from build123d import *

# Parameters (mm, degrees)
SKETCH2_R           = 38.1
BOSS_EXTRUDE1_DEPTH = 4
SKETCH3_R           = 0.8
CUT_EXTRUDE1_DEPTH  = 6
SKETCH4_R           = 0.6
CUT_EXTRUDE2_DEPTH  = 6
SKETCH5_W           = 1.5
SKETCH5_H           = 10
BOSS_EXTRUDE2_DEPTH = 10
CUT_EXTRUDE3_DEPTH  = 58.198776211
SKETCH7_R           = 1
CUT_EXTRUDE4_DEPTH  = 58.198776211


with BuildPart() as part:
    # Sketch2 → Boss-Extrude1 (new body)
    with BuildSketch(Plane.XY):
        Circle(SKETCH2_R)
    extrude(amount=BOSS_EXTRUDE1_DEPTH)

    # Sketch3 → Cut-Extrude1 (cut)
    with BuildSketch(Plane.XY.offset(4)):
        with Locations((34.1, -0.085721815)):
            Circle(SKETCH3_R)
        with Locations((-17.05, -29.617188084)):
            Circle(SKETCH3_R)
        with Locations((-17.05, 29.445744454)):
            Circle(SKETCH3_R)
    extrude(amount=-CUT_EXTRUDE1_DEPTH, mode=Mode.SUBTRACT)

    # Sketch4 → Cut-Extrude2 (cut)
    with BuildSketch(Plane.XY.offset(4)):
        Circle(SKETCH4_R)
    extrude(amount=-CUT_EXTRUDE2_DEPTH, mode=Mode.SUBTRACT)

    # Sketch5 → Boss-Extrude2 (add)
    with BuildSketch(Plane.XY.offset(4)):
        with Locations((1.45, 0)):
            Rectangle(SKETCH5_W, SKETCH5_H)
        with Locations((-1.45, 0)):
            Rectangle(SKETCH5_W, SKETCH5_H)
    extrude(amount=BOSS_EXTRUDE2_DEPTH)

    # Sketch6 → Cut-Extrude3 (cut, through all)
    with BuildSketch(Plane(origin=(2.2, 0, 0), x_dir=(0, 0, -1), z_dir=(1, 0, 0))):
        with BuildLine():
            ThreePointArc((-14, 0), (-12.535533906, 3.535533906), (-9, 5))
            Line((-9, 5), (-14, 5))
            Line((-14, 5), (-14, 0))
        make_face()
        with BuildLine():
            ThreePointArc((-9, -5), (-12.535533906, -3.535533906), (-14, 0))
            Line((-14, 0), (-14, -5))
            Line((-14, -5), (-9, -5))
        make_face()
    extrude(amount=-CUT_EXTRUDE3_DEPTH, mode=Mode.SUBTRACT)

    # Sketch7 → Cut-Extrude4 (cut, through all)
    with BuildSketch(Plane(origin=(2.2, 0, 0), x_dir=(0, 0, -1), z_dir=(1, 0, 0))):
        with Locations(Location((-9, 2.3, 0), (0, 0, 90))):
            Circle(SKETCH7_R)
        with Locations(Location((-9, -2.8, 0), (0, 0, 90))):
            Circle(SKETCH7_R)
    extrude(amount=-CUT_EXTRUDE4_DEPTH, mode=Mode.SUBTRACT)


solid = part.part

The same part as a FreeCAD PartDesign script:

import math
import FreeCAD as App
import Part
import Sketcher
from FreeCAD import Vector

doc = App.newDocument("Part")
body = doc.addObject("PartDesign::Body", "Body")

# Sketch on XY plane
sketch1 = body.newObject("Sketcher::SketchObject", "Sketch")
sketch1.AttachmentSupport = (doc.getObject("XY_Plane"), [""])
sketch1.MapMode = "FlatFace"
sketch1.addGeometry(Part.Circle(Vector(0, 0, 0), Vector(0, 0, 1), 38), False)
sketch1.addConstraint(Sketcher.Constraint("Coincident", 0, 3, -1, 1))
sketch1.addConstraint(Sketcher.Constraint("Diameter", 0, 76.2))
pad1 = body.newObject("PartDesign::Pad", "Pad")
pad1.Profile = sketch1
pad1.Length = 4

# Sketch on XY plane
sketch2 = body.newObject("Sketcher::SketchObject", "Sketch001")
sketch2.AttachmentSupport = (doc.getObject("XY_Plane"), [""])
sketch2.MapMode = "FlatFace"
sketch2.AttachmentOffset = App.Placement(Vector(0, 0, 4), App.Rotation())
sketch2.addGeometry(Part.Circle(Vector(34.1, -0.1, 0), Vector(0, 0, 1), 0.8), False)
sketch2.addGeometry(Part.Circle(Vector(-17.1, -29.6, 0), Vector(0, 0, 1), 0.8), False)
sketch2.addGeometry(Part.Circle(Vector(-17.1, 29.4, 0), Vector(0, 0, 1), 0.8), False)
sketch2.addConstraint(Sketcher.Constraint("Equal", 0, 1))
sketch2.addConstraint(Sketcher.Constraint("Equal", 1, 2))
sketch2.addConstraint(Sketcher.Constraint("Vertical", 1, 3, 2, 3))
sketch2.addConstraint(Sketcher.Constraint("Diameter", 0, 1.6))
sketch2.addConstraint(Sketcher.Constraint("DistanceX", -1, 1, 0, 3, 34.1))
sketch2.addConstraint(Sketcher.Constraint("DistanceX", 1, 3, -1, 1, 17.05))
sketch2.addConstraint(Sketcher.Constraint("DistanceY", 0, 3, -1, 1, 0.085722))
sketch2.addConstraint(Sketcher.Constraint("DistanceY", 1, 3, -1, 1, 29.617188))
sketch2.addConstraint(Sketcher.Constraint("DistanceY", -1, 1, 2, 3, 29.445744))
pocket1 = body.newObject("PartDesign::Pocket", "Pocket")
pocket1.Profile = sketch2
pocket1.Length = 6

# Sketch on XY plane
sketch3 = body.newObject("Sketcher::SketchObject", "Sketch002")
sketch3.AttachmentSupport = (doc.getObject("XY_Plane"), [""])
sketch3.MapMode = "FlatFace"
sketch3.AttachmentOffset = App.Placement(Vector(0, 0, 4), App.Rotation())
sketch3.addGeometry(Part.Circle(Vector(0, 0, 0), Vector(0, 0, 1), 0.6), False)
sketch3.addConstraint(Sketcher.Constraint("Coincident", 0, 3, -1, 1))
sketch3.addConstraint(Sketcher.Constraint("Diameter", 0, 1.2))
pocket2 = body.newObject("PartDesign::Pocket", "Pocket001")
pocket2.Profile = sketch3
pocket2.Length = 6

# Sketch on XY plane
sketch4 = body.newObject("Sketcher::SketchObject", "Sketch003")
sketch4.AttachmentSupport = (doc.getObject("XY_Plane"), [""])
sketch4.MapMode = "FlatFace"
sketch4.AttachmentOffset = App.Placement(Vector(0, 0, 4), App.Rotation())
sketch4.addGeometry(Part.LineSegment(Vector(0.7, 5, 0), Vector(0.7, -5, 0)), False)
sketch4.addGeometry(Part.LineSegment(Vector(0.7, -5, 0), Vector(2.2, -5, 0)), False)
sketch4.addGeometry(Part.LineSegment(Vector(2.2, -5, 0), Vector(2.2, 5, 0)), False)
sketch4.addGeometry(Part.LineSegment(Vector(2.2, 5, 0), Vector(0.7, 5, 0)), False)
sketch4.addGeometry(Part.LineSegment(Vector(-2.2, 5, 0), Vector(-2.2, -5, 0)), False)
sketch4.addGeometry(Part.LineSegment(Vector(-2.2, -5, 0), Vector(-0.7, -5, 0)), False)
sketch4.addGeometry(Part.LineSegment(Vector(-0.7, -5, 0), Vector(-0.7, 5, 0)), False)
sketch4.addGeometry(Part.LineSegment(Vector(-0.7, 5, 0), Vector(-2.2, 5, 0)), False)
sketch4.addConstraint(Sketcher.Constraint("Coincident", 0, 2, 1, 1))
sketch4.addConstraint(Sketcher.Constraint("Coincident", 1, 2, 2, 1))
sketch4.addConstraint(Sketcher.Constraint("Coincident", 2, 2, 3, 1))
sketch4.addConstraint(Sketcher.Constraint("Coincident", 3, 2, 0, 1))
sketch4.addConstraint(Sketcher.Constraint("Coincident", 4, 2, 5, 1))
sketch4.addConstraint(Sketcher.Constraint("Coincident", 5, 2, 6, 1))
sketch4.addConstraint(Sketcher.Constraint("Coincident", 6, 2, 7, 1))
sketch4.addConstraint(Sketcher.Constraint("Coincident", 7, 2, 4, 1))
sketch4.addConstraint(Sketcher.Constraint("Vertical", 0))
sketch4.addConstraint(Sketcher.Constraint("Horizontal", 1))
sketch4.addConstraint(Sketcher.Constraint("Vertical", 2))
sketch4.addConstraint(Sketcher.Constraint("Horizontal", 3))
sketch4.addConstraint(Sketcher.Constraint("Vertical", 4))
sketch4.addConstraint(Sketcher.Constraint("Horizontal", 5))
sketch4.addConstraint(Sketcher.Constraint("Vertical", 6))
sketch4.addConstraint(Sketcher.Constraint("Horizontal", 7))
sketch4.addConstraint(Sketcher.Constraint("Symmetric", 2, 2, 4, 2, -1, 1))
sketch4.addConstraint(Sketcher.Constraint("Symmetric", 0, 2, 6, 2, -1, 1))
sketch4.addConstraint(Sketcher.Constraint("Horizontal", 1, 2, 4, 2))
sketch4.addConstraint(Sketcher.Constraint("DistanceY", 0, 2, 0, 1, 10.0))
sketch4.addConstraint(Sketcher.Constraint("DistanceX", 1, 1, 1, 2, 1.5))
sketch4.addConstraint(Sketcher.Constraint("DistanceX", -1, 1, 0, 2, 0.7))
pad2 = body.newObject("PartDesign::Pad", "Pad001")
pad2.Profile = sketch4
pad2.Length = 10

# Sketch on YZ plane
sketch5 = body.newObject("Sketcher::SketchObject", "Sketch004")
sketch5.AttachmentSupport = (doc.getObject("YZ_Plane"), [""])
sketch5.MapMode = "FlatFace"
sketch5.AttachmentOffset = App.Placement(Vector(0, 0, 2.2), App.Rotation())
sketch5.addGeometry(Part.ArcOfCircle(Part.Circle(Vector(0, 9, 0), Vector(0, 0, 1), 5), math.radians(0), math.radians(90)), False)
sketch5.addGeometry(Part.LineSegment(Vector(5, 9, 0), Vector(5, 14, 0)), False)
sketch5.addGeometry(Part.LineSegment(Vector(5, 14, 0), Vector(0, 14, 0)), False)
sketch5.addGeometry(Part.ArcOfCircle(Part.Circle(Vector(0, 9, 0), Vector(0, 0, 1), 5), math.radians(90), math.radians(180)), False)
sketch5.addGeometry(Part.LineSegment(Vector(0, 14, 0), Vector(-5, 14, 0)), False)
sketch5.addGeometry(Part.LineSegment(Vector(-5, 14, 0), Vector(-5, 9, 0)), False)
sketch5.addConstraint(Sketcher.Constraint("Tangent", 0, 1, 1, 1))
sketch5.addConstraint(Sketcher.Constraint("Coincident", 1, 2, 2, 1))
sketch5.addConstraint(Sketcher.Constraint("Tangent", 2, 2, 0, 2))
sketch5.addConstraint(Sketcher.Constraint("Tangent", 3, 1, 4, 1))
sketch5.addConstraint(Sketcher.Constraint("Coincident", 4, 2, 5, 1))
sketch5.addConstraint(Sketcher.Constraint("Tangent", 5, 2, 3, 2))
sketch5.addConstraint(Sketcher.Constraint("Vertical", 1))
sketch5.addConstraint(Sketcher.Constraint("Horizontal", 2))
sketch5.addConstraint(Sketcher.Constraint("Horizontal", 4))
sketch5.addConstraint(Sketcher.Constraint("Vertical", 5))
sketch5.addConstraint(Sketcher.Constraint("Coincident", 3, 3, 0, 3))
sketch5.addConstraint(Sketcher.Constraint("Equal", 0, 3))
sketch5.addConstraint(Sketcher.Constraint("PointOnObject", 0, 3, -2))
sketch5.addConstraint(Sketcher.Constraint("Radius", 0, 5.0))
sketch5.addConstraint(Sketcher.Constraint("DistanceY", -1, 1, 0, 3, 9.0))
pocket3 = body.newObject("PartDesign::Pocket", "Pocket002")
pocket3.Profile = sketch5
pocket3.Type = "ThroughAll"

# Sketch on YZ plane
sketch6 = body.newObject("Sketcher::SketchObject", "Sketch005")
sketch6.AttachmentSupport = (doc.getObject("YZ_Plane"), [""])
sketch6.MapMode = "FlatFace"
sketch6.AttachmentOffset = App.Placement(Vector(0, 0, 2.2), App.Rotation())
sketch6.addGeometry(Part.Circle(Vector(2.3, 9, 0), Vector(0, 0, 1), 1), False)
sketch6.addGeometry(Part.Circle(Vector(-2.8, 9, 0), Vector(0, 0, 1), 1), False)
sketch6.addConstraint(Sketcher.Constraint("Equal", 0, 1))
sketch6.addConstraint(Sketcher.Constraint("Horizontal", 0, 3, 1, 3))
sketch6.addConstraint(Sketcher.Constraint("Diameter", 0, 2.0))
sketch6.addConstraint(Sketcher.Constraint("DistanceY", -1, 1, 0, 3, 9.0))
sketch6.addConstraint(Sketcher.Constraint("DistanceX", -1, 1, 0, 3, 2.3))
sketch6.addConstraint(Sketcher.Constraint("DistanceX", 1, 3, -1, 1, 2.8))
pocket4 = body.newObject("PartDesign::Pocket", "Pocket003")
pocket4.Profile = sketch6
pocket4.Type = "ThroughAll"

doc.recompute()
